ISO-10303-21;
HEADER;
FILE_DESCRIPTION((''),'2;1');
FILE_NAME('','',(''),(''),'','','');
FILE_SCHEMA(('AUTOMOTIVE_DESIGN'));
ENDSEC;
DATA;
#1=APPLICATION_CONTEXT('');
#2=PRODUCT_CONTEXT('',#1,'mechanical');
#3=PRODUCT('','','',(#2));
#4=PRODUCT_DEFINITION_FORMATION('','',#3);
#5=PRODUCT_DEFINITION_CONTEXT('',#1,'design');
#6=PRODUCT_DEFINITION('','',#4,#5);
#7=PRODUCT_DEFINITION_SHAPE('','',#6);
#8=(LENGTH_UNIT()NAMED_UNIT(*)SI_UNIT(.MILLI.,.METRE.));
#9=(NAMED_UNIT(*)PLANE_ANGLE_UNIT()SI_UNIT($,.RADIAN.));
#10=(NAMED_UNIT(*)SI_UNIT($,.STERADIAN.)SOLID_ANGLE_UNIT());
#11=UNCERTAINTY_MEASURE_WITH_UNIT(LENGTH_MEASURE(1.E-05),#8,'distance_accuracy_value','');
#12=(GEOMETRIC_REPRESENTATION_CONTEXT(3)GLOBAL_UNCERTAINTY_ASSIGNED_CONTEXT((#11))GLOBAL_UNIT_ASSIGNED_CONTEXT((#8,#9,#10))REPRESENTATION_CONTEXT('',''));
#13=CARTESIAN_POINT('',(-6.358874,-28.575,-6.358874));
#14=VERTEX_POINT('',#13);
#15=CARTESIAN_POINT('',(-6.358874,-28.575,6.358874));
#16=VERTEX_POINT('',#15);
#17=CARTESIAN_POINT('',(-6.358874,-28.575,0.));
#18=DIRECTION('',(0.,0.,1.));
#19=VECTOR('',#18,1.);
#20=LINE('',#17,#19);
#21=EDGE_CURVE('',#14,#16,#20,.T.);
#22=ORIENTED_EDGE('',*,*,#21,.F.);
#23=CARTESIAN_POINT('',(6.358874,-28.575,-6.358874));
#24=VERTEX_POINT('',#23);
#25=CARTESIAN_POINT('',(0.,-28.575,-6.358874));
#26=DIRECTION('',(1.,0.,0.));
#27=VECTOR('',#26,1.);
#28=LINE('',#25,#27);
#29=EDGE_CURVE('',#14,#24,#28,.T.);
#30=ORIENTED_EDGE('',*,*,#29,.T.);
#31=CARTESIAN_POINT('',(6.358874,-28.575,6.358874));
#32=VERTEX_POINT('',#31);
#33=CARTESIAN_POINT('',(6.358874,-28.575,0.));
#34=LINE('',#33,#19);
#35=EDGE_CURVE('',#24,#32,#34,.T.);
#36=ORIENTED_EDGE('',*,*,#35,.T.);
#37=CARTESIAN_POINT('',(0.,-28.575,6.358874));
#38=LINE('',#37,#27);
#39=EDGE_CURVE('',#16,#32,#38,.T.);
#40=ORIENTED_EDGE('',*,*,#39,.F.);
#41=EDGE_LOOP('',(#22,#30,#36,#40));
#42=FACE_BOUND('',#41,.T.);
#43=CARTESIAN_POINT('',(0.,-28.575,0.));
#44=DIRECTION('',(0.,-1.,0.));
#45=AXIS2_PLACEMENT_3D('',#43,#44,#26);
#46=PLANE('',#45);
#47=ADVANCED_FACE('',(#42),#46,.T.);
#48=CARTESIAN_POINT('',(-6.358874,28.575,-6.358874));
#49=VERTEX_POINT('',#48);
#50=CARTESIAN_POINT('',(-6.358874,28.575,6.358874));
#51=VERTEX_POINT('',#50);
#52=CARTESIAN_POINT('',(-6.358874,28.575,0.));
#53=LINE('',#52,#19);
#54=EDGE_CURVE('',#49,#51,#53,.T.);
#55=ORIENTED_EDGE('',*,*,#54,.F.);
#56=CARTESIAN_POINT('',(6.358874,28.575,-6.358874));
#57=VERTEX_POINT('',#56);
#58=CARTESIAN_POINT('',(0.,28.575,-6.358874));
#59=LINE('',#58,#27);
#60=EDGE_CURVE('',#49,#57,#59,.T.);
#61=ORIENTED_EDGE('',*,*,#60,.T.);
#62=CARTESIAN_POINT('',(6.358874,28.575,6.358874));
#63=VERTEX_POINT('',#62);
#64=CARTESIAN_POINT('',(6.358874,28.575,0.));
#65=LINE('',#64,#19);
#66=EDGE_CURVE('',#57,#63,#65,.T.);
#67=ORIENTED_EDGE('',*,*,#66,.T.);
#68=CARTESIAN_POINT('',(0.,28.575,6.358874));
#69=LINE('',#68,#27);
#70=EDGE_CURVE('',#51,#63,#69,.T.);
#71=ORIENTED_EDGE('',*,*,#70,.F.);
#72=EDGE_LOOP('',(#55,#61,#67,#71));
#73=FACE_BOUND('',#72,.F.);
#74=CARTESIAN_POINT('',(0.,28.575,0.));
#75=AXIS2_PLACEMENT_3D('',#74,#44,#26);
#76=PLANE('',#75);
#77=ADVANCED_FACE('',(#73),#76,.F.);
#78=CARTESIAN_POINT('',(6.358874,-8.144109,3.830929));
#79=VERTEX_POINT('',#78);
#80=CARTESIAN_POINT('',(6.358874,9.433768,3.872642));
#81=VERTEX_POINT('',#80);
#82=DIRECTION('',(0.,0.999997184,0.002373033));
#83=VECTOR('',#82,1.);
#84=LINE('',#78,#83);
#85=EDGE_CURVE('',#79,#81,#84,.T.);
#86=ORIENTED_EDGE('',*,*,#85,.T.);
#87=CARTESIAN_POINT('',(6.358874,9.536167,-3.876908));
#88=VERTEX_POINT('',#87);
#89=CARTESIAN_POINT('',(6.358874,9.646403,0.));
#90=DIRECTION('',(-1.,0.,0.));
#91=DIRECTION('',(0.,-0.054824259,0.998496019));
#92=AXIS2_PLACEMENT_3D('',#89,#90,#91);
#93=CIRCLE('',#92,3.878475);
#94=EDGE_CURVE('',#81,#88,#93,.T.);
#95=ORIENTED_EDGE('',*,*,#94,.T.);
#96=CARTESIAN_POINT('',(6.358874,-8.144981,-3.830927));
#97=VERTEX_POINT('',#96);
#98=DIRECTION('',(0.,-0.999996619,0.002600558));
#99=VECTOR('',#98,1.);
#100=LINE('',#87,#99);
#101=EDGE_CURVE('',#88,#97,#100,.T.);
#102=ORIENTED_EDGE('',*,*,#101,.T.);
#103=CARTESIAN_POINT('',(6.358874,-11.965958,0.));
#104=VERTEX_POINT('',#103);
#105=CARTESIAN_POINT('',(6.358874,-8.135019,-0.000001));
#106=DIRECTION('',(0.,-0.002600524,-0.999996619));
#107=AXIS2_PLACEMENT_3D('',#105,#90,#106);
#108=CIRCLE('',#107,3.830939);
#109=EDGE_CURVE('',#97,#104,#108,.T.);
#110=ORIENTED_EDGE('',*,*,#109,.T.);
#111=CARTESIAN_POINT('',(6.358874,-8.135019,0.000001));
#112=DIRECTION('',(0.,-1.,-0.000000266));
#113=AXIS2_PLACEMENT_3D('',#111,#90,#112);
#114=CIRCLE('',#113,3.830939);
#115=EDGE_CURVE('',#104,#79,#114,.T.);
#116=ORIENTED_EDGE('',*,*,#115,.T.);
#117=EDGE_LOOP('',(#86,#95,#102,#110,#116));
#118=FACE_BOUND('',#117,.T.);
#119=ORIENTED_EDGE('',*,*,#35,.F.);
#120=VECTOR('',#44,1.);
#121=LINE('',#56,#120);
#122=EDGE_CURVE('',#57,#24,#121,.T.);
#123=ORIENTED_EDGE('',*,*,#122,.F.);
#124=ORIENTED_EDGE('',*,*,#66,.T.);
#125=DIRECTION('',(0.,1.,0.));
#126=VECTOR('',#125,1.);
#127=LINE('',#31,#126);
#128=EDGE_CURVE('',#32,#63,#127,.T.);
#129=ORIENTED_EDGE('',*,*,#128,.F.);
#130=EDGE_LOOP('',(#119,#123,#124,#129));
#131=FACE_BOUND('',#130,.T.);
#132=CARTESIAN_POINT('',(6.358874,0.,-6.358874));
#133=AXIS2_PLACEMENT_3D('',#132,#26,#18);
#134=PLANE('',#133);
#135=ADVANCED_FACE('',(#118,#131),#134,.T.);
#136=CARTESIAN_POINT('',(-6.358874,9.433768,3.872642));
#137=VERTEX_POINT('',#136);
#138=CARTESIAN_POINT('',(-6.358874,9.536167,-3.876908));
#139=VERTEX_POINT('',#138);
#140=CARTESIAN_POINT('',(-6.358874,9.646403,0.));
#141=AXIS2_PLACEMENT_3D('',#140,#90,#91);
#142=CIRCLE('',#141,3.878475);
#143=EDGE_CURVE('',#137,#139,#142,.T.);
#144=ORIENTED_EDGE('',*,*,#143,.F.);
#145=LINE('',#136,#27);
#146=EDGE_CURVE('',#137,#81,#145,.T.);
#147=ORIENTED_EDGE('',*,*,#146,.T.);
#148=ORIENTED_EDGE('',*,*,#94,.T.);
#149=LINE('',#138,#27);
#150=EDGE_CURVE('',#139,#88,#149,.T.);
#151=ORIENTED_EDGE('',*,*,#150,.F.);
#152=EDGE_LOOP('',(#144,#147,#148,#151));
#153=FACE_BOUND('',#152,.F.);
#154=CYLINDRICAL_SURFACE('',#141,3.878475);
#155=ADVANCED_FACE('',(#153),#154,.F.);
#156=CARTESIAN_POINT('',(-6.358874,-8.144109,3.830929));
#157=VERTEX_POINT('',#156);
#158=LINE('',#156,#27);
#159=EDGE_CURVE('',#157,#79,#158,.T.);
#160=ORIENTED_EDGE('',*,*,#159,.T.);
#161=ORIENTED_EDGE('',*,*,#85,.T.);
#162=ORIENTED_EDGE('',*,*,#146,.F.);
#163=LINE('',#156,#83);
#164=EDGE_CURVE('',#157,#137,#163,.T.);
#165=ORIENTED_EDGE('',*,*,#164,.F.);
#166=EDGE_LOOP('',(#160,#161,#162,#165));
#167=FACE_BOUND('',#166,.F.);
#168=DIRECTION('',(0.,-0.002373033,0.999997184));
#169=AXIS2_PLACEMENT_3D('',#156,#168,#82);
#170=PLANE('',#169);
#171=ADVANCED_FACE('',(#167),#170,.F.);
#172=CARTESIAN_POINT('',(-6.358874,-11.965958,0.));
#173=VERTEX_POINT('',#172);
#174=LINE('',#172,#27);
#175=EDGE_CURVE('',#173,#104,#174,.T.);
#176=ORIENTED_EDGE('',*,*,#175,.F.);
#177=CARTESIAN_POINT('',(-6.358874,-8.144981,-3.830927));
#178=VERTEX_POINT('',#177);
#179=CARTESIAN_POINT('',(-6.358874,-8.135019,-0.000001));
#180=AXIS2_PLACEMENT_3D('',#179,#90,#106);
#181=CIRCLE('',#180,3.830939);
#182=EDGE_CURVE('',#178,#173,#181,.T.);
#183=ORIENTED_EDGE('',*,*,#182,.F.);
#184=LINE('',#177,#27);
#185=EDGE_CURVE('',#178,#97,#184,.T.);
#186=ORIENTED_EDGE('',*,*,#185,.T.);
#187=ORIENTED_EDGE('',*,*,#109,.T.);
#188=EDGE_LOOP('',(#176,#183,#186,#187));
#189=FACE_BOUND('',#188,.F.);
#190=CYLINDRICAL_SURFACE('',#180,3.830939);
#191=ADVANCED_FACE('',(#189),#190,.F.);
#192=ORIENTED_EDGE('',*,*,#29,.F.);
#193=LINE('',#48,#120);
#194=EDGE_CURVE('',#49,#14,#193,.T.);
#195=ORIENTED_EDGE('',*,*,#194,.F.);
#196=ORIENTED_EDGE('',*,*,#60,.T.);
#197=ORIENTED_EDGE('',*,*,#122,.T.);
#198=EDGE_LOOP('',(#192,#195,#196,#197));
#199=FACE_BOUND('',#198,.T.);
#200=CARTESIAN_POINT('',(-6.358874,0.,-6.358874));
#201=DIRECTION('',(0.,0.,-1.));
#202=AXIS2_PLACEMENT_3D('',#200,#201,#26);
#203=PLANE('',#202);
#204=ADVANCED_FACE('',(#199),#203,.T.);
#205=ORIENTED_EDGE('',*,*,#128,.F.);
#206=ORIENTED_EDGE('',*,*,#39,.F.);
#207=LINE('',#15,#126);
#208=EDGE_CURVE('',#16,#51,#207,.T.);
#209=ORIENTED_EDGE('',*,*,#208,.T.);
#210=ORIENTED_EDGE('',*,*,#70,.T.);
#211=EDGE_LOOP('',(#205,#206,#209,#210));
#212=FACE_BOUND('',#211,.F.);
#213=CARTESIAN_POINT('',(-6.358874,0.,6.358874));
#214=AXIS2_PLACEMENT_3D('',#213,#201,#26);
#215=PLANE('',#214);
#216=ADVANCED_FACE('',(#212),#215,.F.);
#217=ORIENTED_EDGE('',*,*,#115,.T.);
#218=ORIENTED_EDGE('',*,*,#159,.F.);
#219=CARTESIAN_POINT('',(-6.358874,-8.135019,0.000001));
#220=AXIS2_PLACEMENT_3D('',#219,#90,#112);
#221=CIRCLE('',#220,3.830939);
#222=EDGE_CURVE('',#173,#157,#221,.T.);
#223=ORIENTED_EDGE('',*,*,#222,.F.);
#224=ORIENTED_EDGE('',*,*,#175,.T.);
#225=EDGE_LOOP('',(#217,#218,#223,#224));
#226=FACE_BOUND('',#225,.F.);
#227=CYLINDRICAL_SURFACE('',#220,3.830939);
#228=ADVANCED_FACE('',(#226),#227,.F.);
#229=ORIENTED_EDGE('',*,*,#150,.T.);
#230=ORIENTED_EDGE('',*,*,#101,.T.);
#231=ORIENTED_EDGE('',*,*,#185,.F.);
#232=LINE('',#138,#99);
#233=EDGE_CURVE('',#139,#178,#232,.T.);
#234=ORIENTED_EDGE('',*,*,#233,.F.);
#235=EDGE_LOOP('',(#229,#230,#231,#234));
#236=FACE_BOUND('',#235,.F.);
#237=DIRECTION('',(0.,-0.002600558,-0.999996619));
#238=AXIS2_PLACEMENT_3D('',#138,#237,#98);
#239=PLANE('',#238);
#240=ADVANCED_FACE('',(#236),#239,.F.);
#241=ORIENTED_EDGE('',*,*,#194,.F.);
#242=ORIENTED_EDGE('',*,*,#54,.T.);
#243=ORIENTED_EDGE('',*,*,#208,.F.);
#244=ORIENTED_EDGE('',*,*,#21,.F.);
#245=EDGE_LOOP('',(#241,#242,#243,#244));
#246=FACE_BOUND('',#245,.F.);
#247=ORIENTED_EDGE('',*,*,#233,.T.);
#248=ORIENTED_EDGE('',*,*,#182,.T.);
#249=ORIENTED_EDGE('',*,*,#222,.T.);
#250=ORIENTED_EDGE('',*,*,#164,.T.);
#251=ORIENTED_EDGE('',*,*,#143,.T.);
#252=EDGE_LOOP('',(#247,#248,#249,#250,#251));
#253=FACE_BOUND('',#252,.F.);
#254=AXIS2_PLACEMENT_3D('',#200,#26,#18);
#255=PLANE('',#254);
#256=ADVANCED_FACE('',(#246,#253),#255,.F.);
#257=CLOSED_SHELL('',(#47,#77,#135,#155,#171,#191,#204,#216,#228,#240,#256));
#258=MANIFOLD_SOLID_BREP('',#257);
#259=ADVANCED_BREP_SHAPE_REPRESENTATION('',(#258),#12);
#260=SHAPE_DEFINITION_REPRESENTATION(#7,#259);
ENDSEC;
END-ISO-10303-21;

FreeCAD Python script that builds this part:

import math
import FreeCAD as App
import Part
import Sketcher
Q = App.Units.Quantity

doc = App.newDocument("Part")
body = doc.addObject("PartDesign::Body", "Body")

# Sketch on XZ plane
sketch1 = body.newObject("Sketcher::SketchObject", "Sketch")
sketch1.AttachmentSupport = (doc.getObject("XZ_Plane"), [""])
sketch1.MapMode = "FlatFace"
sketch1.addGeometry(Part.LineSegment(App.Vector(-6, 6, 0), App.Vector(-6, -6, 0)), False)
sketch1.addGeometry(Part.LineSegment(App.Vector(-6, -6, 0), App.Vector(6, -6, 0)), False)
sketch1.addGeometry(Part.LineSegment(App.Vector(6, -6, 0), App.Vector(6, 6, 0)), False)
sketch1.addGeometry(Part.LineSegment(App.Vector(6, 6, 0), App.Vector(-6, 6, 0)), False)
sketch1.addConstraint(Sketcher.Constraint("Coincident", 0, 2, 1, 1))
sketch1.addConstraint(Sketcher.Constraint("Coincident", 1, 2, 2, 1))
sketch1.addConstraint(Sketcher.Constraint("Coincident", 2, 2, 3, 1))
sketch1.addConstraint(Sketcher.Constraint("Coincident", 3, 2, 0, 1))
sketch1.addConstraint(Sketcher.Constraint("Vertical", 0))
sketch1.addConstraint(Sketcher.Constraint("Horizontal", 1))
sketch1.addConstraint(Sketcher.Constraint("Vertical", 2))
sketch1.addConstraint(Sketcher.Constraint("Horizontal", 3))
sketch1.addConstraint(Sketcher.Constraint("Symmetric", 0, 2, 2, 2, -1, 1))
sketch1.addConstraint(Sketcher.Constraint("Equal", 3, 0))
sketch1.addConstraint(Sketcher.Constraint("DistanceX", 1, 1, 1, 2, 12.717748))
pad1 = body.newObject("PartDesign::Pad", "Pad")
pad1.Profile = sketch1
pad1.Length = Q("2.25 in")
pad1.Midplane = True

# Sketch on YZ plane
sketch2 = body.newObject("Sketcher::SketchObject", "Sketch001")
sketch2.AttachmentSupport = (doc.getObject("YZ_Plane"), [""])
sketch2.MapMode = "FlatFace"
sketch2.AttachmentOffset = App.Placement(App.Vector(0, 0, -6.358874), App.Rotation())
sketch2.addGeometry(Part.LineSegment(App.Vector(9.536167, -3.876908, 0), App.Vector(-8.144981, -3.830927, 0)), False)
sketch2.addGeometry(Part.ArcOfCircle(Part.Circle(App.Vector(-8.135019, -0.000001, 0), App.Vector(0, 0, 1), 3.830939), math.radians(179.999992), math.radians(269.851001)), False)
sketch2.addGeometry(Part.ArcOfCircle(Part.Circle(App.Vector(-8.135019, 0.000001, 0), App.Vector(0, 0, 1), 3.830939), math.radians(90.135947), math.radians(180.000015)), False)
sketch2.addGeometry(Part.LineSegment(App.Vector(-8.144109, 3.830929, 0), App.Vector(9.433768, 3.872642, 0)), False)
sketch2.addGeometry(Part.ArcOfCircle(Part.Circle(App.Vector(9.646403, 0, 0), App.Vector(0, 0, 1), 3.878475), math.radians(-91.628702), math.radians(93.142774)), False)
sketch2.addConstraint(Sketcher.Constraint("Coincident", 0, 2, 1, 2))
sketch2.addConstraint(Sketcher.Constraint("Coincident", 1, 1, 2, 2))
sketch2.addConstraint(Sketcher.Constraint("Coincident", 2, 1, 3, 1))
sketch2.addConstraint(Sketcher.Constraint("Coincident", 3, 2, 4, 2))
sketch2.addConstraint(Sketcher.Constraint("Coincident", 4, 1, 0, 1))
sketch2.addConstraint(Sketcher.Constraint("Coincident", 2, 3, 1, 3))
sketch2.addConstraint(Sketcher.Constraint("PointOnObject", 1, 3, -1))
sketch2.addConstraint(Sketcher.Constraint("PointOnObject", 4, 3, -1))
sketch2.addConstraint(Sketcher.Constraint("PointOnObject", 1, 1, -1))
sketch2.addConstraint(Sketcher.Constraint("Radius", 1, 3.830939))
sketch2.addConstraint(Sketcher.Constraint("Radius", 4, 3.878475))
sketch2.addConstraint(Sketcher.Constraint("DistanceX", 3, 2, 4, 1, 0.102399))
sketch2.addConstraint(Sketcher.Constraint("DistanceX", 1, 3, -1, 1, 8.135019))
sketch2.addConstraint(Sketcher.Constraint("DistanceX", 0, 2, -1, 1, 8.144981))
sketch2.addConstraint(Sketcher.Constraint("DistanceX", 2, 1, -1, 1, 8.144109))
sketch2.addConstraint(Sketcher.Constraint("DistanceY", -1, 1, 3, 2, 3.872642))
sketch2.addConstraint(Sketcher.Constraint("DistanceX", 1, 3, 4, 3, 17.781421))
pocket1 = body.newObject("PartDesign::Pocket", "Pocket")
pocket1.Profile = sketch2
pocket1.Type = "ThroughAll"
pocket1.Reversed = True

doc.recompute()
